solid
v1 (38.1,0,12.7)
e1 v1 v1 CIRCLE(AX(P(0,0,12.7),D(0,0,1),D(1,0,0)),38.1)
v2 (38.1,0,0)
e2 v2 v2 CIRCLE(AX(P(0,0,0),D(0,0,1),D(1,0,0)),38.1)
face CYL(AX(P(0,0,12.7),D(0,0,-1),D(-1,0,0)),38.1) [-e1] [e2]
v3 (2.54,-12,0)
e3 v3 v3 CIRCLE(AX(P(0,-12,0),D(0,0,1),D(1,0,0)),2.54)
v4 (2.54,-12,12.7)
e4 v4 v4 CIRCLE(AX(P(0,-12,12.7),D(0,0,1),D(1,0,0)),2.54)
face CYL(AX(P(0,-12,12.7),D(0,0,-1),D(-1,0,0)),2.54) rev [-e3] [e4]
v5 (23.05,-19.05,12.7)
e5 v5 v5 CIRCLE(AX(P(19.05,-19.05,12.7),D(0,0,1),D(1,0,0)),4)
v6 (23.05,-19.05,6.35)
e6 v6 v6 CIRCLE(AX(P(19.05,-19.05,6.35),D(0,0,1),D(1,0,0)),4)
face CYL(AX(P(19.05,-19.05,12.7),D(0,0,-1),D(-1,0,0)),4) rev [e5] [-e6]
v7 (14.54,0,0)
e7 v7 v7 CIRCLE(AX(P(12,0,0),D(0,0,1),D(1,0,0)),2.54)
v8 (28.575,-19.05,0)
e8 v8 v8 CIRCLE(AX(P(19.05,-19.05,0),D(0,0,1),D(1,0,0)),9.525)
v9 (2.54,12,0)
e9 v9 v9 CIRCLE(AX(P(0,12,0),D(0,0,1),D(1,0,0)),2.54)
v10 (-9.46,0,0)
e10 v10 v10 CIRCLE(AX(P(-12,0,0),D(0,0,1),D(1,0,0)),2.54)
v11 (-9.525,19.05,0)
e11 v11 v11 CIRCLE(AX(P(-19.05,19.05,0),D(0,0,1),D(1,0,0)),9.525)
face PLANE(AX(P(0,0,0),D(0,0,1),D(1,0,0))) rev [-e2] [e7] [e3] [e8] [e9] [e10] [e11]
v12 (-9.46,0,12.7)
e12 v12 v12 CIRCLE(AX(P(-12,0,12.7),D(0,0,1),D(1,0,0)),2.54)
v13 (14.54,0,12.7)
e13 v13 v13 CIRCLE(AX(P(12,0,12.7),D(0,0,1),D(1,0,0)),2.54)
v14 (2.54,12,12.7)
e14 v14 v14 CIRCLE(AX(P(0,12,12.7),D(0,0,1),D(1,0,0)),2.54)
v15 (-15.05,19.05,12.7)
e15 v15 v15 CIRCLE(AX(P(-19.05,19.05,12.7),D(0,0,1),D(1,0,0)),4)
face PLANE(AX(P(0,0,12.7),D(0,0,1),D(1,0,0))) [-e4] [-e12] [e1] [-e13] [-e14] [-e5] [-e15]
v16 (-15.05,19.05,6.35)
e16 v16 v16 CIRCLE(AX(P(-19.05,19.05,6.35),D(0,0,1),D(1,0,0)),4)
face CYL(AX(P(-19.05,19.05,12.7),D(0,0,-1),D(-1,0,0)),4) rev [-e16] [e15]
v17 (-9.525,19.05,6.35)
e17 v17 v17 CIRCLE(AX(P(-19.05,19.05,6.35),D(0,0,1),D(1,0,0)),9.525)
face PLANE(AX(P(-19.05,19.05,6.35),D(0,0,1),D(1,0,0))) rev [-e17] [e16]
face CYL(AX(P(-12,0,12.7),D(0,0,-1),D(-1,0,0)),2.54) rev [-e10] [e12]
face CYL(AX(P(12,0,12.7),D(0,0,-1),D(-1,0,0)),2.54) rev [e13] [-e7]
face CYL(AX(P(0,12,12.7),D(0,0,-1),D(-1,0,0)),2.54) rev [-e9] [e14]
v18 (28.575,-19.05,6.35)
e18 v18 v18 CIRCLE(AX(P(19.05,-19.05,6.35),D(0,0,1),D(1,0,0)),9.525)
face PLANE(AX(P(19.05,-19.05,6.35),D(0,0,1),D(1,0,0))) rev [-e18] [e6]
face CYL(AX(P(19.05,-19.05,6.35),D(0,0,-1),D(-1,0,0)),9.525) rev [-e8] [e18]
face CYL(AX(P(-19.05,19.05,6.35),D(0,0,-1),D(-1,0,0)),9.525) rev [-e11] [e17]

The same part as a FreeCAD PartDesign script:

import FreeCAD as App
import Part
import Sketcher
Q = App.Units.Quantity

doc = App.newDocument("Part")
body = doc.addObject("PartDesign::Body", "Body")

# Sketch on XY plane
sketch1 = doc.addObject("Sketcher::SketchObject", "Sketch")
body.addObject(sketch1)
sketch1.AttachmentSupport = (doc.XY_Plane, [""])
sketch1.MapMode = "FlatFace"
sketch1.addGeometry(Part.Circle(App.Vector(0, 0, 0), App.Vector(0, 0, 1), 38.1), False)
sketch1.addGeometry(Part.Circle(App.Vector(0, -12, 0), App.Vector(0, 0, 1), 2.5), False)
sketch1.addGeometry(Part.Circle(App.Vector(-12, 0, 0), App.Vector(0, 0, 1), 2.5), False)
sketch1.addGeometry(Part.Circle(App.Vector(12, 0, 0), App.Vector(0, 0, 1), 2.5), False)
sketch1.addGeometry(Part.Circle(App.Vector(0, 12, 0), App.Vector(0, 0, 1), 2.5), False)
sketch1.addConstraint(Sketcher.Constraint("Coincident", 0, 3, -1, 1))
sketch1.addConstraint(Sketcher.Constraint("Equal", 1, 2))
sketch1.addConstraint(Sketcher.Constraint("Equal", 2, 3))
sketch1.addConstraint(Sketcher.Constraint("Equal", 3, 4))
sketch1.addConstraint(Sketcher.Constraint("Symmetric", 2, 3, 3, 3, -1, 1))
sketch1.addConstraint(Sketcher.Constraint("Symmetric", 1, 3, 4, 3, -1, 1))
sketch1.addConstraint(Sketcher.Constraint("PointOnObject", 1, 3, -2))
sketch1.addConstraint(Sketcher.Constraint("PointOnObject", 2, 3, -1))
sketch1.addConstraint(Sketcher.Constraint("Diameter", 0, Q("3 in")))
sketch1.addConstraint(Sketcher.Constraint("Diameter", 1, Q("0.2 in")))
sketch1.addConstraint(Sketcher.Constraint("DistanceY", 1, 3, -1, 1, 12.0))
sketch1.addConstraint(Sketcher.Constraint("DistanceX", 2, 3, -1, 1, 12.0))
pad1 = doc.addObject("PartDesign::Pad", "Pad")
body.addObject(pad1)
pad1.Profile = sketch1
pad1.Length = Q("0.5 in")

# Sketch on XY plane
sketch2 = doc.addObject("Sketcher::SketchObject", "Sketch001")
body.addObject(sketch2)
sketch2.AttachmentSupport = (doc.XY_Plane, [""])
sketch2.MapMode = "FlatFace"
sketch2.addGeometry(Part.Circle(App.Vector(19.1, -19.1, 0), App.Vector(0, 0, 1), 4), False)
sketch2.addConstraint(Sketcher.Constraint("Diameter", 0, 8.0))
sketch2.addConstraint(Sketcher.Constraint("DistanceX", -1, 1, 0, 3, Q("0.75 in")))
sketch2.addConstraint(Sketcher.Constraint("DistanceY", 0, 3, -1, 1, Q("0.75 in")))
pocket1 = doc.addObject("PartDesign::Pocket", "Pocket")
body.addObject(pocket1)
pocket1.Profile = sketch2
pocket1.Type = "ThroughAll"
pocket1.Reversed = True

# Sketch on XY plane
sketch3 = doc.addObject("Sketcher::SketchObject", "Sketch002")
body.addObject(sketch3)
sketch3.AttachmentSupport = (doc.XY_Plane, [""])
sketch3.MapMode = "FlatFace"
sketch3.addGeometry(Part.Circle(App.Vector(19, -19, 0), App.Vector(0, 0, 1), 10), False)
sketch3.addConstraint(Sketcher.Constraint("Diameter", 0, Q("0.75 in")))
sketch3.addConstraint(Sketcher.Constraint("DistanceX", -1, 1, 0, 3, Q("0.75 in")))
sketch3.addConstraint(Sketcher.Constraint("DistanceY", 0, 3, -1, 1, Q("0.75 in")))
pocket2 = doc.addObject("PartDesign::Pocket", "Pocket001")
body.addObject(pocket2)
pocket2.Profile = sketch3
pocket2.Length = Q("0.25 in")
pocket2.Reversed = True

# Sketch on XY plane
sketch4 = doc.addObject("Sketcher::SketchObject", "Sketch003")
body.addObject(sketch4)
sketch4.AttachmentSupport = (doc.XY_Plane, [""])
sketch4.MapMode = "FlatFace"
sketch4.addGeometry(Part.Circle(App.Vector(-19.1, 19.1, 0), App.Vector(0, 0, 1), 4), False)
sketch4.addConstraint(Sketcher.Constraint("Diameter", 0, 8.0))
sketch4.addConstraint(Sketcher.Constraint("DistanceX", 0, 3, -1, 1, Q("0.75 in")))
sketch4.addConstraint(Sketcher.Constraint("DistanceY", -1, 1, 0, 3, Q("0.75 in")))
pocket3 = doc.addObject("PartDesign::Pocket", "Pocket002")
body.addObject(pocket3)
pocket3.Profile = sketch4
pocket3.Type = "ThroughAll"
pocket3.Reversed = True

# Sketch on XY plane
sketch5 = doc.addObject("Sketcher::SketchObject", "Sketch004")
body.addObject(sketch5)
sketch5.AttachmentSupport = (doc.XY_Plane, [""])
sketch5.MapMode = "FlatFace"
sketch5.addGeometry(Part.Circle(App.Vector(-19, 19, 0), App.Vector(0, 0, 1), 10), False)
sketch5.addConstraint(Sketcher.Constraint("Diameter", 0, Q("0.75 in")))
sketch5.addConstraint(Sketcher.Constraint("DistanceX", 0, 3, -1, 1, Q("0.75 in")))
sketch5.addConstraint(Sketcher.Constraint("DistanceY", -1, 1, 0, 3, Q("0.75 in")))
pocket4 = doc.addObject("PartDesign::Pocket", "Pocket003")
body.addObject(pocket4)
pocket4.Profile = sketch5
pocket4.Length = Q("0.25 in")
pocket4.Reversed = True

doc.recompute()
